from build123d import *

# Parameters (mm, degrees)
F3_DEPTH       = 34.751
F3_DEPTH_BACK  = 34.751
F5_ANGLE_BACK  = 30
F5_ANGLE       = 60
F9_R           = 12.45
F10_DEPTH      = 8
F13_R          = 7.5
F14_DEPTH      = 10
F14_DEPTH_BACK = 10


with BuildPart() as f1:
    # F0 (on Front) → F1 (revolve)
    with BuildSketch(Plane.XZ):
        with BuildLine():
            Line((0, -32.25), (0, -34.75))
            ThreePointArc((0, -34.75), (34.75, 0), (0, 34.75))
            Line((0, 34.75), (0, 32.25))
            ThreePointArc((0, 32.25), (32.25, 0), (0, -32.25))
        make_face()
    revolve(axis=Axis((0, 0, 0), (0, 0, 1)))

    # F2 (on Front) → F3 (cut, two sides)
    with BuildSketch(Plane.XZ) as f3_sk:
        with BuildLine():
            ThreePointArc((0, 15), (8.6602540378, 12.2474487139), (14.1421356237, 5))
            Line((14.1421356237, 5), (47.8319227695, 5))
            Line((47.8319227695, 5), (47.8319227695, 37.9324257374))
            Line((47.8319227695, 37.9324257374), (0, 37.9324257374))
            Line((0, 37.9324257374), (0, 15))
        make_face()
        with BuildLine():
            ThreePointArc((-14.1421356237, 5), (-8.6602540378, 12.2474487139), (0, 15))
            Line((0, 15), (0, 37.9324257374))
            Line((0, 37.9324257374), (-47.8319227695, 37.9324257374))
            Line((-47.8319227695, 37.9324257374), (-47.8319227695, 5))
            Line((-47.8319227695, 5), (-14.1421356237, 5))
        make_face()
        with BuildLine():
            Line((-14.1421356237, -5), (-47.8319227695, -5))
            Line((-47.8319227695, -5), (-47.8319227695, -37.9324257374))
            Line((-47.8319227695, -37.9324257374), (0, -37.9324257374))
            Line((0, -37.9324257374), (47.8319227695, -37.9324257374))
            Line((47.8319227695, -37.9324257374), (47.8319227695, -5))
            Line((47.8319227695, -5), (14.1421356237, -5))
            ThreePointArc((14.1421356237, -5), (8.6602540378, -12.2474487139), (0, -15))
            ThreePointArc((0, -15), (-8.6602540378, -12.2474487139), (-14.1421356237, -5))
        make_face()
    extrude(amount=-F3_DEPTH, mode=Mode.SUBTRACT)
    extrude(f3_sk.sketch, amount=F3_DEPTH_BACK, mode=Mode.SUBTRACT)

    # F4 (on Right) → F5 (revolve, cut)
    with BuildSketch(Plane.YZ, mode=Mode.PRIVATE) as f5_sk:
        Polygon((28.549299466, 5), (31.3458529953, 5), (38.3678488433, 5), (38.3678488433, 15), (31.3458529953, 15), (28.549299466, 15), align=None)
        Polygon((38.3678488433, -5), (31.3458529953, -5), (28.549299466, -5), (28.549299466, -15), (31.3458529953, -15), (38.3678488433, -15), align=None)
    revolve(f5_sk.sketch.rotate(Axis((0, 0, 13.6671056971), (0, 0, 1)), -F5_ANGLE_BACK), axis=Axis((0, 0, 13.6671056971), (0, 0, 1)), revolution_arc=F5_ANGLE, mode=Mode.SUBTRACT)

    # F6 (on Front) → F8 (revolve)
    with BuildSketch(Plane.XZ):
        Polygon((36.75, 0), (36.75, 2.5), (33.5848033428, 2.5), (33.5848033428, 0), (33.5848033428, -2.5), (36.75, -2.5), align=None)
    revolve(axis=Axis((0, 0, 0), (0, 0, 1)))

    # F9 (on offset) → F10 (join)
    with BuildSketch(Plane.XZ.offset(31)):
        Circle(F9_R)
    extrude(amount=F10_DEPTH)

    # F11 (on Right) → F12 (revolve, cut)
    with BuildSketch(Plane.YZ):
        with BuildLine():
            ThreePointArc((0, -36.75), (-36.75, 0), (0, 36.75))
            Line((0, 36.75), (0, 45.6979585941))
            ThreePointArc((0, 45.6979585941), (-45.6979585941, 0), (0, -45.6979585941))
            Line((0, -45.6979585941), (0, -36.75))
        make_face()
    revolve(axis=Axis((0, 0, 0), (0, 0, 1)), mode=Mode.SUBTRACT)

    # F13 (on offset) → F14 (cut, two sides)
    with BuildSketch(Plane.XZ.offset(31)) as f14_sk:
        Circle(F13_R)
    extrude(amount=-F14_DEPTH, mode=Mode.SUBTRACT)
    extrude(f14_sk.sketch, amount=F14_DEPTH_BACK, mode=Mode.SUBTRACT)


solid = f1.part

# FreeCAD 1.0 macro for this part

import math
import FreeCAD as App
import Part
import Sketcher
from FreeCAD import Vector
Q = App.Units.Quantity

doc = App.newDocument("Part")
body = doc.addObject("PartDesign::Body", "Body")

# Sketch on XZ plane
sketch1 = body.newObject("Sketcher::SketchObject", "Sketch")
sketch1.AttachmentSupport = (doc.getObject("XZ_Plane"), [""])
sketch1.MapMode = "FlatFace"
sketch1.addGeometry([
    Part.LineSegment(Vector(0, -32.25, 0), Vector(0, -34.75, 0)),
    Part.ArcOfCircle(Part.Circle(Vector(0, 0, 0), Vector(0, 0, 1), 34.75), math.radians(-90), math.radians(90)),
    Part.LineSegment(Vector(0, 34.75, 0), Vector(0, 32.25, 0)),
    Part.ArcOfCircle(Part.Circle(Vector(0, 0, 0), Vector(0, 0, 1), 32.25), math.radians(-90), math.radians(90)),
], False)
sketch1.addConstraint([
    Sketcher.Constraint("Coincident", 0, 2, 1, 1),
    Sketcher.Constraint("Coincident", 1, 2, 2, 1),
    Sketcher.Constraint("Coincident", 2, 2, 3, 2),
    Sketcher.Constraint("Coincident", 3, 1, 0, 1),
    Sketcher.Constraint("Vertical", 0),
    Sketcher.Constraint("Vertical", 2),
    Sketcher.Constraint("Coincident", 1, 3, -1, 1),
    Sketcher.Constraint("Coincident", 3, 3, -1, 1),
    Sketcher.Constraint("PointOnObject", 0, 2, -2),
    Sketcher.Constraint("PointOnObject", 1, 2, -2),
    Sketcher.Constraint("Radius", 1, Q("34.75 mm")),
    Sketcher.Constraint("Radius", 3, Q("32.25 mm")),
])
revolution = body.newObject("PartDesign::Revolution", "Revolution")
revolution.Profile = sketch1
revolution.ReferenceAxis = (sketch1, ["V_Axis"])
revolution.Angle = 360

# Sketch on XZ plane
sketch2 = body.newObject("Sketcher::SketchObject", "Sketch001")
sketch2.AttachmentSupport = (doc.getObject("XZ_Plane"), [""])
sketch2.MapMode = "FlatFace"
sketch2.addGeometry([
    Part.ArcOfCircle(Part.Circle(Vector(0, 0, 0), Vector(0, 0, 1), 15), math.radians(19.471221), math.radians(90)),  # 0
    Part.LineSegment(Vector(14.142136, 5, 0), Vector(47.831923, 5, 0)),  # 1
    Part.LineSegment(Vector(47.831923, 5, 0), Vector(47.831923, 37.932426, 0)),  # 2
    Part.LineSegment(Vector(47.831923, 37.932426, 0), Vector(-47.831923, 37.932426, 0)),  # 3
    Part.LineSegment(Vector(-47.831923, 37.932426, 0), Vector(-47.831923, 5, 0)),  # 4
    Part.LineSegment(Vector(-47.831923, 5, 0), Vector(-14.142136, 5, 0)),  # 5
    Part.ArcOfCircle(Part.Circle(Vector(0, 0, 0), Vector(0, 0, 1), 15), math.radians(90), math.radians(160.528779)),  # 6
    Part.LineSegment(Vector(-14.142136, -5, 0), Vector(-47.831923, -5, 0)),  # 7
    Part.LineSegment(Vector(-47.831923, -5, 0), Vector(-47.831923, -37.932426, 0)),  # 8
    Part.LineSegment(Vector(-47.831923, -37.932426, 0), Vector(47.831923, -37.932426, 0)),  # 9
    Part.LineSegment(Vector(47.831923, -37.932426, 0), Vector(47.831923, -5, 0)),  # 10
    Part.LineSegment(Vector(47.831923, -5, 0), Vector(14.142136, -5, 0)),  # 11
    Part.ArcOfCircle(Part.Circle(Vector(0, 0, 0), Vector(0, 0, 1), 15), math.radians(-90), math.radians(-19.471221)),  # 12
    Part.ArcOfCircle(Part.Circle(Vector(0, 0, 0), Vector(0, 0, 1), 15), math.radians(-160.528779), math.radians(-90)),  # 13
], False)
sketch2.addConstraint([
    Sketcher.Constraint("Coincident", 0, 1, 1, 1),
    Sketcher.Constraint("Coincident", 1, 2, 2, 1),
    Sketcher.Constraint("Coincident", 2, 2, 3, 1),
    Sketcher.Constraint("Coincident", 3, 2, 4, 1),
    Sketcher.Constraint("Coincident", 4, 2, 5, 1),
    Sketcher.Constraint("Coincident", 5, 2, 6, 2),
    Sketcher.Constraint("Tangent", 6, 1, 0, 2),
    Sketcher.Constraint("Coincident", 7, 2, 8, 1),
    Sketcher.Constraint("Coincident", 8, 2, 9, 1),
    Sketcher.Constraint("Coincident", 9, 2, 10, 1),
    Sketcher.Constraint("Coincident", 10, 2, 11, 1),
    Sketcher.Constraint("Coincident", 11, 2, 12, 2),
    Sketcher.Constraint("Tangent", 12, 1, 13, 2),
    Sketcher.Constraint("Coincident", 13, 1, 7, 1),
    Sketcher.Constraint("Horizontal", 1),
    Sketcher.Constraint("Vertical", 2),
    Sketcher.Constraint("Horizontal", 3),
    Sketcher.Constraint("Vertical", 4),
    Sketcher.Constraint("Horizontal", 5),
    Sketcher.Constraint("Horizontal", 7),
    Sketcher.Constraint("Vertical", 8),
    Sketcher.Constraint("Horizontal", 9),
    Sketcher.Constraint("Vertical", 10),
    Sketcher.Constraint("Horizontal", 11),
    Sketcher.Constraint("Coincident", 0, 3, -1, 1),
    Sketcher.Constraint("Coincident", 12, 3, -1, 1),
    Sketcher.Constraint("Equal", 0, 6),
    Sketcher.Constraint("Equal", 6, 12),
    Sketcher.Constraint("Equal", 12, 13),
    Sketcher.Constraint("Symmetric", 1, 2, 7, 2, -1, 1),
    Sketcher.Constraint("Symmetric", 3, 2, 9, 2, -1, 1),
    Sketcher.Constraint("Symmetric", 1, 2, 4, 2, -2),
    Sketcher.Constraint("PointOnObject", 6, 1, -2),
    Sketcher.Constraint("PointOnObject", 12, 1, -2),
    Sketcher.Constraint("Horizontal", 7, 2, 10, 2),
    Sketcher.Constraint("Radius", 0, Q("15 mm")),
    Sketcher.Constraint("DistanceY", -1, 1, 0, 1, Q("5 mm")),
    Sketcher.Constraint("DistanceX", 1, 1, 1, 2, Q("33.689787 mm")),
    Sketcher.Constraint("DistanceY", 2, 1, 2, 2, Q("32.932426 mm")),
])
pocket1 = body.newObject("PartDesign::Pocket", "Pocket")
pocket1.Profile = sketch2
pocket1.Type = "ThroughAll"
pocket1.Midplane = True

# Sketch on an angled plane
sketch3 = body.newObject("Sketcher::SketchObject", "Sketch002")
sketch3.Placement = App.Placement(Vector(0, 0, 0), App.Rotation(Vector(0.5, 0.866025404, 0), Vector(0, 0, 1), Vector(0.866025404, -0.5, 0), "ZXY"))
sketch3.addGeometry([
    Part.LineSegment(Vector(28.549299, 5, 0), Vector(38.367849, 5, 0)),  # 0
    Part.LineSegment(Vector(38.367849, 5, 0), Vector(38.367849, 15, 0)),  # 1
    Part.LineSegment(Vector(38.367849, 15, 0), Vector(28.549299, 15, 0)),  # 2
    Part.LineSegment(Vector(28.549299, 15, 0), Vector(28.549299, 5, 0)),  # 3
    Part.LineSegment(Vector(38.367849, -5, 0), Vector(28.549299, -5, 0)),  # 4
    Part.LineSegment(Vector(28.549299, -5, 0), Vector(28.549299, -15, 0)),  # 5
    Part.LineSegment(Vector(28.549299, -15, 0), Vector(38.367849, -15, 0)),  # 6
    Part.LineSegment(Vector(38.367849, -15, 0), Vector(38.367849, -5, 0)),  # 7
], False)
sketch3.addConstraint([
    Sketcher.Constraint("Coincident", 0, 2, 1, 1),
    Sketcher.Constraint("Coincident", 1, 2, 2, 1),
    Sketcher.Constraint("Coincident", 2, 2, 3, 1),
    Sketcher.Constraint("Coincident", 3, 2, 0, 1),
    Sketcher.Constraint("Coincident", 4, 2, 5, 1),
    Sketcher.Constraint("Coincident", 5, 2, 6, 1),
    Sketcher.Constraint("Coincident", 6, 2, 7, 1),
    Sketcher.Constraint("Coincident", 7, 2, 4, 1),
    Sketcher.Constraint("Horizontal", 0),
    Sketcher.Constraint("Vertical", 1),
    Sketcher.Constraint("Horizontal", 2),
    Sketcher.Constraint("Vertical", 3),
    Sketcher.Constraint("Horizontal", 4),
    Sketcher.Constraint("Vertical", 5),
    Sketcher.Constraint("Horizontal", 6),
    Sketcher.Constraint("Vertical", 7),
    Sketcher.Constraint("Symmetric", 3, 2, 4, 2, -1),
    Sketcher.Constraint("Symmetric", 1, 2, 6, 2, -1),
    Sketcher.Constraint("DistanceY", 1, 1, 1, 2, Q("10 mm")),
    Sketcher.Constraint("DistanceY", -1, 1, 0, 2, Q("5 mm")),
    Sketcher.Constraint("DistanceX", 0, 1, 0, 2, Q("9.818549 mm")),
    Sketcher.Constraint("DistanceX", -1, 1, 2, 2, Q("28.549299 mm")),
])
groove = body.newObject("PartDesign::Groove", "Groove")
groove.Profile = sketch3
groove.ReferenceAxis = (sketch3, ["V_Axis"])
groove.Angle = 60

# Sketch on XZ plane
sketch4 = body.newObject("Sketcher::SketchObject", "Sketch003")
sketch4.AttachmentSupport = (doc.getObject("XZ_Plane"), [""])
sketch4.MapMode = "FlatFace"
sketch4.addGeometry([
    Part.LineSegment(Vector(36.75, 2.5, 0), Vector(33.584803, 2.5, 0)),
    Part.LineSegment(Vector(33.584803, 2.5, 0), Vector(33.584803, -2.5, 0)),
    Part.LineSegment(Vector(33.584803, -2.5, 0), Vector(36.75, -2.5, 0)),
    Part.LineSegment(Vector(36.75, -2.5, 0), Vector(36.75, 2.5, 0)),
], False)
sketch4.addConstraint([
    Sketcher.Constraint("Coincident", 0, 2, 1, 1),
    Sketcher.Constraint("Coincident", 1, 2, 2, 1),
    Sketcher.Constraint("Coincident", 2, 2, 3, 1),
    Sketcher.Constraint("Coincident", 3, 2, 0, 1),
    Sketcher.Constraint("Horizontal", 0),
    Sketcher.Constraint("Vertical", 1),
    Sketcher.Constraint("Horizontal", 2),
    Sketcher.Constraint("Vertical", 3),
    Sketcher.Constraint("DistanceY", 1, 2, 1, 1, Q("5 mm")),
    Sketcher.Constraint("DistanceY", -1, 1, 0, 2, Q("2.5 mm")),
    Sketcher.Constraint("DistanceX", -1, 1, 2, 2, Q("36.75 mm")),
    Sketcher.Constraint("DistanceX", 0, 2, 0, 1, Q("3.165197 mm")),
])
revolution2 = body.newObject("PartDesign::Revolution", "Revolution001")
revolution2.Profile = sketch4
revolution2.ReferenceAxis = (sketch4, ["V_Axis"])
revolution2.Angle = 360

# Sketch on XZ plane
sketch5 = body.newObject("Sketcher::SketchObject", "Sketch004")
sketch5.AttachmentSupport = (doc.getObject("XZ_Plane"), [""])
sketch5.MapMode = "FlatFace"
sketch5.AttachmentOffset = App.Placement(Vector(0, 0, 31), App.Rotation())
sketch5.addGeometry(Part.Circle(Vector(0, 0, 0), Vector(0, 0, 1), 12.45), False)
sketch5.addConstraint([
    Sketcher.Constraint("Coincident", 0, 3, -1, 1),
    Sketcher.Constraint("Diameter", 0, Q("24.9 mm")),
])
pad1 = body.newObject("PartDesign::Pad", "Pad")
pad1.Profile = sketch5
pad1.Length = 8

# Sketch on YZ plane
sketch6 = body.newObject("Sketcher::SketchObject", "Sketch005")
sketch6.AttachmentSupport = (doc.getObject("YZ_Plane"), [""])
sketch6.MapMode = "FlatFace"
sketch6.addGeometry([
    Part.ArcOfCircle(Part.Circle(Vector(0, 0, 0), Vector(0, 0, 1), 36.75), math.radians(90), math.radians(270)),
    Part.LineSegment(Vector(0, 36.75, 0), Vector(0, 45.697959, 0)),
    Part.ArcOfCircle(Part.Circle(Vector(0, 0, 0), Vector(0, 0, 1), 45.697959), math.radians(90), math.radians(270)),
    Part.LineSegment(Vector(0, -45.697959, 0), Vector(0, -36.75, 0)),
], False)
sketch6.addConstraint([
    Sketcher.Constraint("Coincident", 0, 1, 1, 1),
    Sketcher.Constraint("Coincident", 1, 2, 2, 1),
    Sketcher.Constraint("Coincident", 2, 2, 3, 1),
    Sketcher.Constraint("Coincident", 3, 2, 0, 2),
    Sketcher.Constraint("Vertical", 1),
    Sketcher.Constraint("Vertical", 3),
    Sketcher.Constraint("Coincident", 0, 3, -1, 1),
    Sketcher.Constraint("Coincident", 2, 3, -1, 1),
    Sketcher.Constraint("PointOnObject", 0, 1, -2),
    Sketcher.Constraint("PointOnObject", 2, 2, -2),
    Sketcher.Constraint("Radius", 0, Q("36.75 mm")),
    Sketcher.Constraint("Radius", 2, Q("45.697959 mm")),
])
groove2 = body.newObject("PartDesign::Groove", "Groove001")
groove2.Profile = sketch6
groove2.ReferenceAxis = (sketch6, ["V_Axis"])
groove2.Angle = 360

# Sketch on XZ plane
sketch7 = body.newObject("Sketcher::SketchObject", "Sketch006")
sketch7.AttachmentSupport = (doc.getObject("XZ_Plane"), [""])
sketch7.MapMode = "FlatFace"
sketch7.AttachmentOffset = App.Placement(Vector(0, 0, 31), App.Rotation())
sketch7.addGeometry(Part.Circle(Vector(0, 0, 0), Vector(0, 0, 1), 7.5), False)
sketch7.addConstraint([
    Sketcher.Constraint("Coincident", 0, 3, -1, 1),
    Sketcher.Constraint("Diameter", 0, Q("15 mm")),
])
pocket2 = body.newObject("PartDesign::Pocket", "Pocket001")
pocket2.Profile = sketch7
pocket2.Type = "TwoLengths"
pocket2.Length = 10
pocket2.Length2 = 10

doc.recompute()
